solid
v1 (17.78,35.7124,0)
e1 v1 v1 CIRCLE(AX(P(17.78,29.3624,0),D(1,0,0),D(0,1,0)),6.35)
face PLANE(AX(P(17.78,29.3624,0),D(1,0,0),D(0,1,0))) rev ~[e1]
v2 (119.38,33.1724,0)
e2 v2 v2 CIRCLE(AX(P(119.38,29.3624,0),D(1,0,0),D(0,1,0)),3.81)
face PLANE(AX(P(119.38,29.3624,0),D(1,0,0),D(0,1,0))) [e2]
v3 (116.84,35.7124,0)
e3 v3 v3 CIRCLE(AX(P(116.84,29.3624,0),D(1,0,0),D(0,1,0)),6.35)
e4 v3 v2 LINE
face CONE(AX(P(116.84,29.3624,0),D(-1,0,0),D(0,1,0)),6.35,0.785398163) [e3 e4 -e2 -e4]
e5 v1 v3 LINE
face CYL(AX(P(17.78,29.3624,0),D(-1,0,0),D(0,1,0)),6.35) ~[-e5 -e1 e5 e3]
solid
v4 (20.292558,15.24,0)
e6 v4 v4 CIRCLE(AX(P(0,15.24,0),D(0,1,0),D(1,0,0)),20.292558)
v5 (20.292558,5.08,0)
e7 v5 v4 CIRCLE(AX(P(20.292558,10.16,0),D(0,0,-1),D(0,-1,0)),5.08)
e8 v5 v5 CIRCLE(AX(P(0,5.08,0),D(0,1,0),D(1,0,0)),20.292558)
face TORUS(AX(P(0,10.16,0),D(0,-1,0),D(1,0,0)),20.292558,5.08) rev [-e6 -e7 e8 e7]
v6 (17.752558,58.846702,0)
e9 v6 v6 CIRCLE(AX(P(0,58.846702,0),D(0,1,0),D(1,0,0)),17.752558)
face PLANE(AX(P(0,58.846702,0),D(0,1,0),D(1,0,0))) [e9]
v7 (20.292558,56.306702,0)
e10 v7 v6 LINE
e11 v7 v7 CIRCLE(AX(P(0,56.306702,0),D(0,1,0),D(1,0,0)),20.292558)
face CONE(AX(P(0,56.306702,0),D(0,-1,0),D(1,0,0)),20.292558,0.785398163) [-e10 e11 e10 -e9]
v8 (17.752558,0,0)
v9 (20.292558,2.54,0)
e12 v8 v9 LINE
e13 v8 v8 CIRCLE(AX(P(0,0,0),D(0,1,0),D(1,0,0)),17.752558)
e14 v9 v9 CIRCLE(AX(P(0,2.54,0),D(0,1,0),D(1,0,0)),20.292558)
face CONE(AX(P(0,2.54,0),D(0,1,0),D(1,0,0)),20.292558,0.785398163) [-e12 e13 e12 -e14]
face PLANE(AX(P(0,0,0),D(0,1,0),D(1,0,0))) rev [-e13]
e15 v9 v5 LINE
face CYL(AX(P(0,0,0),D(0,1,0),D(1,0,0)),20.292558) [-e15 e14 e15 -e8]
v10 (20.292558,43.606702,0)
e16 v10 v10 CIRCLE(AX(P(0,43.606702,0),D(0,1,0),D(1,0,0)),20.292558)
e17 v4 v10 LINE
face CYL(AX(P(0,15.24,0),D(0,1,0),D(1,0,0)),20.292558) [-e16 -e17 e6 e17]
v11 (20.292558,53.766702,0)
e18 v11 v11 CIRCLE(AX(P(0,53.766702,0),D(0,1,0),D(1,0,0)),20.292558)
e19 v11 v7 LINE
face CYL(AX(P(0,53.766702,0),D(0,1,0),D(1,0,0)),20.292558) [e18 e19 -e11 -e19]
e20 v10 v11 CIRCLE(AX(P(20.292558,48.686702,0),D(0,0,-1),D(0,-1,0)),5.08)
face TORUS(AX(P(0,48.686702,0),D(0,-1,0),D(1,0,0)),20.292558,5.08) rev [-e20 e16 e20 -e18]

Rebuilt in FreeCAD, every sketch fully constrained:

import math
import FreeCAD as App
import Part
import Sketcher

V = App.Vector
Q = App.Units.Quantity


def edges_at(feature, points):
    """Names of the edges that pass closest to the given points."""
    edges = feature.Shape.Edges
    near = lambda p: min(range(len(edges)), key=lambda i: edges[i].distToShape(Part.Vertex(*p))[0])
    return sorted({f"Edge{near(p) + 1}" for p in points})

doc = App.newDocument("Part")
body = doc.addObject("PartDesign::Body", "Body")

sketch1 = body.newObject("Sketcher::SketchObject", "Sketch")
sketch1.AttachmentSupport = (doc.getObject("XY_Plane"), [""])
sketch1.MapMode = "FlatFace"
sketch1.addGeometry([
    Part.LineSegment(V(0, 59, 0), V(0, 0, 0)),
    Part.LineSegment(V(0, 0, 0), V(20, 0, 0)),
    Part.LineSegment(V(20, 0, 0), V(20, 5, 0)),
    Part.ArcOfCircle(Part.Circle(V(20, 10, 0), V(0, 0, 1), 5), math.radians(90), math.radians(270)),
    Part.LineSegment(V(20, 15, 0), V(20, 44, 0)),
    Part.ArcOfCircle(Part.Circle(V(20, 49, 0), V(0, 0, 1), 5), math.radians(90), math.radians(270)),
    Part.LineSegment(V(20, 54, 0), V(20, 59, 0)),
    Part.LineSegment(V(20, 59, 0), V(0, 59, 0)),
], False)
sketch1.addConstraint([
    Sketcher.Constraint("Coincident", 0, 2, 1, 1),
    Sketcher.Constraint("Coincident", 1, 2, 2, 1),
    Sketcher.Constraint("Coincident", 2, 2, 3, 2),
    Sketcher.Constraint("Coincident", 3, 1, 4, 1),
    Sketcher.Constraint("Coincident", 4, 2, 5, 2),
    Sketcher.Constraint("Coincident", 5, 1, 6, 1),
    Sketcher.Constraint("Coincident", 6, 2, 7, 1),
    Sketcher.Constraint("Coincident", 7, 2, 0, 1),
    Sketcher.Constraint("Vertical", 0),
    Sketcher.Constraint("Horizontal", 1),
    Sketcher.Constraint("Vertical", 2),
    Sketcher.Constraint("Vertical", 4),
    Sketcher.Constraint("Vertical", 6),
    Sketcher.Constraint("Horizontal", 7),
    Sketcher.Constraint("Coincident", 0, 2, -1, 1),
    Sketcher.Constraint("Equal", 3, 5),
    Sketcher.Constraint("Vertical", 3, 3, 5, 3),
    Sketcher.Constraint("Vertical", 5, 3, 1, 2),
    Sketcher.Constraint("Vertical", 2, 2, 3, 1),
    Sketcher.Constraint("Vertical", 4, 2, 5, 1),
    Sketcher.Constraint("Equal", 2, 6),
    Sketcher.Constraint("Radius", 3, Q("0.2 in")),
    Sketcher.Constraint("DistanceY", 2, 1, 2, 2, Q("0.2 in")),
    Sketcher.Constraint("DistanceY", 4, 1, 4, 2, Q("28.366702 mm")),
    Sketcher.Constraint("DistanceX", 1, 1, 1, 2, Q("20.292558 mm")),
])
revolution = body.newObject("PartDesign::Revolution", "Revolution")
revolution.Profile = sketch1
revolution.ReferenceAxis = (sketch1, ["V_Axis"])
revolution.Angle = 360
doc.recompute()

chamfer = body.newObject("PartDesign::Chamfer", "Chamfer")
chamfer.Base = (revolution, edges_at(revolution, [(-20.293, 0, 0), (-20.293, 58.847, 0)]))
chamfer.Size = Q("0.1 in")
body2 = doc.addObject("PartDesign::Body", "Body001")

sketch2 = body2.newObject("Sketcher::SketchObject", "Sketch001")
sketch2.AttachmentSupport = (doc.getObject("YZ_Plane001"), [""])
sketch2.MapMode = "FlatFace"
sketch2.AttachmentOffset = App.Placement(V(0, 0, 0.7 * 25.4), App.Rotation())
sketch2.addGeometry(Part.Circle(V(29, 0, 0), V(0, 0, 1), 6), False)
sketch2.addConstraint([
    Sketcher.Constraint("PointOnObject", 0, 3, -1),
    Sketcher.Constraint("Diameter", 0, Q("0.5 in")),
    Sketcher.Constraint("DistanceX", -1, 1, 0, 3, Q("1.156 in")),
])
pad1 = body2.newObject("PartDesign::Pad", "Pad")
pad1.Profile = sketch2
pad1.Length = Q("4 in")
doc.recompute()

chamfer2 = body2.newObject("PartDesign::Chamfer", "Chamfer001")
chamfer2.Base = (pad1, edges_at(pad1, [(119.38, 23.012, 0)]))
chamfer2.Size = Q("0.1 in")

doc.recompute()
